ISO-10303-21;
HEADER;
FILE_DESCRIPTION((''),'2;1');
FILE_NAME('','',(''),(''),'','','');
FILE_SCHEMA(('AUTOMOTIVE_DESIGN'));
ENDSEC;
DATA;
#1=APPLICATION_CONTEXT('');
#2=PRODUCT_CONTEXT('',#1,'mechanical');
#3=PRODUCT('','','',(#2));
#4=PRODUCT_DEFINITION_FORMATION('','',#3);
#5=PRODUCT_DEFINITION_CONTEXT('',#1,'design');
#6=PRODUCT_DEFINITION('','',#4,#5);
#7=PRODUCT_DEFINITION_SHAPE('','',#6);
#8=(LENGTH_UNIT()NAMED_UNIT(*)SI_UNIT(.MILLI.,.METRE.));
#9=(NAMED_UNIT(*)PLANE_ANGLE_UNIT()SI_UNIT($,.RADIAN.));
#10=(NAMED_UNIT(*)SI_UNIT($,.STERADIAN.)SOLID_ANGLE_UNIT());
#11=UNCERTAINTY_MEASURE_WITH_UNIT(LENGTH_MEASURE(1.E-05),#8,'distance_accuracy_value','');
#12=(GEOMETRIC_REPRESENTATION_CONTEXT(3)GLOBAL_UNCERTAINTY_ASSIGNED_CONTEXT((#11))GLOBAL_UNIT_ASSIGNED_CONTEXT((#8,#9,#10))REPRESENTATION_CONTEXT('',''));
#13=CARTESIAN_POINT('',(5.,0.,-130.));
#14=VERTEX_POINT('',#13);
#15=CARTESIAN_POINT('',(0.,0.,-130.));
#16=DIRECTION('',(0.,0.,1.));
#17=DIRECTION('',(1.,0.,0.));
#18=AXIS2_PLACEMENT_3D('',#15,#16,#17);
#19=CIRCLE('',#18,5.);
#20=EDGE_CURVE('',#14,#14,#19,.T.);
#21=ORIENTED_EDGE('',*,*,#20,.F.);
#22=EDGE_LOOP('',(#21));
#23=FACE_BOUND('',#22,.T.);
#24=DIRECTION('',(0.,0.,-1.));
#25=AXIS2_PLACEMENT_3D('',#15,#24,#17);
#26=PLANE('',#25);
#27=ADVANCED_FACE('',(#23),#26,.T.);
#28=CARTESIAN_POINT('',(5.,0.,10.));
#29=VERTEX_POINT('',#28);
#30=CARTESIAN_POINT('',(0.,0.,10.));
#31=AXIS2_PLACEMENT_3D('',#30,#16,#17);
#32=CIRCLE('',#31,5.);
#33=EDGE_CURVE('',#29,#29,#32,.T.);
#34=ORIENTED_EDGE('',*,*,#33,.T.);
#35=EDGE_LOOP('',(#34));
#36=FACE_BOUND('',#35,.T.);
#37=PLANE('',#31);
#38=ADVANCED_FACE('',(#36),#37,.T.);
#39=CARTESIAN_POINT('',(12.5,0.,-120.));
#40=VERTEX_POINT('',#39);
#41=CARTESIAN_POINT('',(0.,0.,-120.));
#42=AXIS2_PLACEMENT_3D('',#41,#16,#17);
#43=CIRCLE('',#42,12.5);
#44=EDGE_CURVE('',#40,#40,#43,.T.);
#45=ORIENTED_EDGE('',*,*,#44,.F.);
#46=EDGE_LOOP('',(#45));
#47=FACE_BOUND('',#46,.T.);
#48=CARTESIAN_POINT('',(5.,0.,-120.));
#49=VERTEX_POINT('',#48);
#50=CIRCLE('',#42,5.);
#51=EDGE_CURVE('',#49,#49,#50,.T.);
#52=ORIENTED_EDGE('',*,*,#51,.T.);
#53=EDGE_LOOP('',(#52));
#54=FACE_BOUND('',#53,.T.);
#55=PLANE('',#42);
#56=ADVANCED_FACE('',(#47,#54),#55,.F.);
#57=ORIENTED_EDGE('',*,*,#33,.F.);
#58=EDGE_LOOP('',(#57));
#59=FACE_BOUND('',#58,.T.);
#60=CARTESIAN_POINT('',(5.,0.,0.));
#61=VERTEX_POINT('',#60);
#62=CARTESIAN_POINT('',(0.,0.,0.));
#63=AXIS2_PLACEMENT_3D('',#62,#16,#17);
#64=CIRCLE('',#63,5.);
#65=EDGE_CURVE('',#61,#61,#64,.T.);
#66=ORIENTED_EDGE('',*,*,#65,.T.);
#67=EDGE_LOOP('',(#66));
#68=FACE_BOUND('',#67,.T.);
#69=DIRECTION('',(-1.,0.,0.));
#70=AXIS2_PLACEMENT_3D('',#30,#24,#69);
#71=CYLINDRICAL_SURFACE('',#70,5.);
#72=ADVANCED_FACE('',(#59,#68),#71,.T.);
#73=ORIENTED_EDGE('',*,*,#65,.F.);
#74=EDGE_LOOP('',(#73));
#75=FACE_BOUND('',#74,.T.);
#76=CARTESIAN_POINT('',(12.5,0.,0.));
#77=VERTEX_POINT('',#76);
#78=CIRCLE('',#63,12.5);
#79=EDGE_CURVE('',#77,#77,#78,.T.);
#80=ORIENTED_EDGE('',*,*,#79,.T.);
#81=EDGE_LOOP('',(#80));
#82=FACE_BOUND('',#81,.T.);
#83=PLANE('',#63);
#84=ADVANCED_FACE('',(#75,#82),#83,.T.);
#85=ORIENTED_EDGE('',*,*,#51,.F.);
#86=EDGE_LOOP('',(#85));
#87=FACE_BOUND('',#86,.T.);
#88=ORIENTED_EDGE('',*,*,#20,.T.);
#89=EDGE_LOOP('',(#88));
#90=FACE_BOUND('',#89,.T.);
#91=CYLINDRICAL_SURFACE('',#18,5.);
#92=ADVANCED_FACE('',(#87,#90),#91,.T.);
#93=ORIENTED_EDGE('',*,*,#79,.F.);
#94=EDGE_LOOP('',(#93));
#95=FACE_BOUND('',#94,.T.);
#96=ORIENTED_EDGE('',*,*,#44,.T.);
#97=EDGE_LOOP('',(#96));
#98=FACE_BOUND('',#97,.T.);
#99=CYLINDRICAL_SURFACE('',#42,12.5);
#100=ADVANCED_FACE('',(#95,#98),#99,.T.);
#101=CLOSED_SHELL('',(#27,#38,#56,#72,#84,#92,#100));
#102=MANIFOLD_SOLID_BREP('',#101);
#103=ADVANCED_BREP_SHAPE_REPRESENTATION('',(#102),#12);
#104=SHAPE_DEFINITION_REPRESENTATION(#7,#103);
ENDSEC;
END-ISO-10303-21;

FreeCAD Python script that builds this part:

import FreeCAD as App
import Part
import Sketcher

V = App.Vector

doc = App.newDocument("Part")
body = doc.addObject("PartDesign::Body", "Body")

# Sketch on XY plane
sketch1 = body.newObject("Sketcher::SketchObject", "Sketch")
sketch1.AttachmentSupport = (doc.getObject("XY_Plane"), [""])
sketch1.MapMode = "FlatFace"
sketch1.addGeometry(Part.Circle(V(0, 0, 0), V(0, 0, 1), 12), False)
sketch1.addConstraint(Sketcher.Constraint("Coincident", 0, 3, -1, 1))
sketch1.addConstraint(Sketcher.Constraint("Diameter", 0, 25.0))
pad1 = body.newObject("PartDesign::Pad", "Pad")
pad1.Profile = sketch1
pad1.Length = 120
pad1.Reversed = True

# Sketch on XY plane
sketch2 = body.newObject("Sketcher::SketchObject", "Sketch001")
sketch2.AttachmentSupport = (doc.getObject("XY_Plane"), [""])
sketch2.MapMode = "FlatFace"
sketch2.addGeometry(Part.Circle(V(0, 0, 0), V(0, 0, 1), 5), False)
sketch2.addConstraint(Sketcher.Constraint("Coincident", 0, 3, -1, 1))
sketch2.addConstraint(Sketcher.Constraint("Diameter", 0, 10.0))
pad2 = body.newObject("PartDesign::Pad", "Pad001")
pad2.Profile = sketch2
pad2.Length = 10
doc.recompute()

datumplane = body.newObject("PartDesign::Plane", "DatumPlane")
datumplane.AttachmentSupport = (doc.getObject("XY_Plane"), [""])
datumplane.MapMode = "FlatFace"
datumplane.AttachmentOffset = App.Placement(V(0, 0, -60), App.Rotation())
mirrored = body.newObject("PartDesign::Mirrored", "Mirrored")
mirrored.Originals = [pad2]
mirrored.MirrorPlane = (datumplane, [""])
body.Tip = mirrored

doc.recompute()
